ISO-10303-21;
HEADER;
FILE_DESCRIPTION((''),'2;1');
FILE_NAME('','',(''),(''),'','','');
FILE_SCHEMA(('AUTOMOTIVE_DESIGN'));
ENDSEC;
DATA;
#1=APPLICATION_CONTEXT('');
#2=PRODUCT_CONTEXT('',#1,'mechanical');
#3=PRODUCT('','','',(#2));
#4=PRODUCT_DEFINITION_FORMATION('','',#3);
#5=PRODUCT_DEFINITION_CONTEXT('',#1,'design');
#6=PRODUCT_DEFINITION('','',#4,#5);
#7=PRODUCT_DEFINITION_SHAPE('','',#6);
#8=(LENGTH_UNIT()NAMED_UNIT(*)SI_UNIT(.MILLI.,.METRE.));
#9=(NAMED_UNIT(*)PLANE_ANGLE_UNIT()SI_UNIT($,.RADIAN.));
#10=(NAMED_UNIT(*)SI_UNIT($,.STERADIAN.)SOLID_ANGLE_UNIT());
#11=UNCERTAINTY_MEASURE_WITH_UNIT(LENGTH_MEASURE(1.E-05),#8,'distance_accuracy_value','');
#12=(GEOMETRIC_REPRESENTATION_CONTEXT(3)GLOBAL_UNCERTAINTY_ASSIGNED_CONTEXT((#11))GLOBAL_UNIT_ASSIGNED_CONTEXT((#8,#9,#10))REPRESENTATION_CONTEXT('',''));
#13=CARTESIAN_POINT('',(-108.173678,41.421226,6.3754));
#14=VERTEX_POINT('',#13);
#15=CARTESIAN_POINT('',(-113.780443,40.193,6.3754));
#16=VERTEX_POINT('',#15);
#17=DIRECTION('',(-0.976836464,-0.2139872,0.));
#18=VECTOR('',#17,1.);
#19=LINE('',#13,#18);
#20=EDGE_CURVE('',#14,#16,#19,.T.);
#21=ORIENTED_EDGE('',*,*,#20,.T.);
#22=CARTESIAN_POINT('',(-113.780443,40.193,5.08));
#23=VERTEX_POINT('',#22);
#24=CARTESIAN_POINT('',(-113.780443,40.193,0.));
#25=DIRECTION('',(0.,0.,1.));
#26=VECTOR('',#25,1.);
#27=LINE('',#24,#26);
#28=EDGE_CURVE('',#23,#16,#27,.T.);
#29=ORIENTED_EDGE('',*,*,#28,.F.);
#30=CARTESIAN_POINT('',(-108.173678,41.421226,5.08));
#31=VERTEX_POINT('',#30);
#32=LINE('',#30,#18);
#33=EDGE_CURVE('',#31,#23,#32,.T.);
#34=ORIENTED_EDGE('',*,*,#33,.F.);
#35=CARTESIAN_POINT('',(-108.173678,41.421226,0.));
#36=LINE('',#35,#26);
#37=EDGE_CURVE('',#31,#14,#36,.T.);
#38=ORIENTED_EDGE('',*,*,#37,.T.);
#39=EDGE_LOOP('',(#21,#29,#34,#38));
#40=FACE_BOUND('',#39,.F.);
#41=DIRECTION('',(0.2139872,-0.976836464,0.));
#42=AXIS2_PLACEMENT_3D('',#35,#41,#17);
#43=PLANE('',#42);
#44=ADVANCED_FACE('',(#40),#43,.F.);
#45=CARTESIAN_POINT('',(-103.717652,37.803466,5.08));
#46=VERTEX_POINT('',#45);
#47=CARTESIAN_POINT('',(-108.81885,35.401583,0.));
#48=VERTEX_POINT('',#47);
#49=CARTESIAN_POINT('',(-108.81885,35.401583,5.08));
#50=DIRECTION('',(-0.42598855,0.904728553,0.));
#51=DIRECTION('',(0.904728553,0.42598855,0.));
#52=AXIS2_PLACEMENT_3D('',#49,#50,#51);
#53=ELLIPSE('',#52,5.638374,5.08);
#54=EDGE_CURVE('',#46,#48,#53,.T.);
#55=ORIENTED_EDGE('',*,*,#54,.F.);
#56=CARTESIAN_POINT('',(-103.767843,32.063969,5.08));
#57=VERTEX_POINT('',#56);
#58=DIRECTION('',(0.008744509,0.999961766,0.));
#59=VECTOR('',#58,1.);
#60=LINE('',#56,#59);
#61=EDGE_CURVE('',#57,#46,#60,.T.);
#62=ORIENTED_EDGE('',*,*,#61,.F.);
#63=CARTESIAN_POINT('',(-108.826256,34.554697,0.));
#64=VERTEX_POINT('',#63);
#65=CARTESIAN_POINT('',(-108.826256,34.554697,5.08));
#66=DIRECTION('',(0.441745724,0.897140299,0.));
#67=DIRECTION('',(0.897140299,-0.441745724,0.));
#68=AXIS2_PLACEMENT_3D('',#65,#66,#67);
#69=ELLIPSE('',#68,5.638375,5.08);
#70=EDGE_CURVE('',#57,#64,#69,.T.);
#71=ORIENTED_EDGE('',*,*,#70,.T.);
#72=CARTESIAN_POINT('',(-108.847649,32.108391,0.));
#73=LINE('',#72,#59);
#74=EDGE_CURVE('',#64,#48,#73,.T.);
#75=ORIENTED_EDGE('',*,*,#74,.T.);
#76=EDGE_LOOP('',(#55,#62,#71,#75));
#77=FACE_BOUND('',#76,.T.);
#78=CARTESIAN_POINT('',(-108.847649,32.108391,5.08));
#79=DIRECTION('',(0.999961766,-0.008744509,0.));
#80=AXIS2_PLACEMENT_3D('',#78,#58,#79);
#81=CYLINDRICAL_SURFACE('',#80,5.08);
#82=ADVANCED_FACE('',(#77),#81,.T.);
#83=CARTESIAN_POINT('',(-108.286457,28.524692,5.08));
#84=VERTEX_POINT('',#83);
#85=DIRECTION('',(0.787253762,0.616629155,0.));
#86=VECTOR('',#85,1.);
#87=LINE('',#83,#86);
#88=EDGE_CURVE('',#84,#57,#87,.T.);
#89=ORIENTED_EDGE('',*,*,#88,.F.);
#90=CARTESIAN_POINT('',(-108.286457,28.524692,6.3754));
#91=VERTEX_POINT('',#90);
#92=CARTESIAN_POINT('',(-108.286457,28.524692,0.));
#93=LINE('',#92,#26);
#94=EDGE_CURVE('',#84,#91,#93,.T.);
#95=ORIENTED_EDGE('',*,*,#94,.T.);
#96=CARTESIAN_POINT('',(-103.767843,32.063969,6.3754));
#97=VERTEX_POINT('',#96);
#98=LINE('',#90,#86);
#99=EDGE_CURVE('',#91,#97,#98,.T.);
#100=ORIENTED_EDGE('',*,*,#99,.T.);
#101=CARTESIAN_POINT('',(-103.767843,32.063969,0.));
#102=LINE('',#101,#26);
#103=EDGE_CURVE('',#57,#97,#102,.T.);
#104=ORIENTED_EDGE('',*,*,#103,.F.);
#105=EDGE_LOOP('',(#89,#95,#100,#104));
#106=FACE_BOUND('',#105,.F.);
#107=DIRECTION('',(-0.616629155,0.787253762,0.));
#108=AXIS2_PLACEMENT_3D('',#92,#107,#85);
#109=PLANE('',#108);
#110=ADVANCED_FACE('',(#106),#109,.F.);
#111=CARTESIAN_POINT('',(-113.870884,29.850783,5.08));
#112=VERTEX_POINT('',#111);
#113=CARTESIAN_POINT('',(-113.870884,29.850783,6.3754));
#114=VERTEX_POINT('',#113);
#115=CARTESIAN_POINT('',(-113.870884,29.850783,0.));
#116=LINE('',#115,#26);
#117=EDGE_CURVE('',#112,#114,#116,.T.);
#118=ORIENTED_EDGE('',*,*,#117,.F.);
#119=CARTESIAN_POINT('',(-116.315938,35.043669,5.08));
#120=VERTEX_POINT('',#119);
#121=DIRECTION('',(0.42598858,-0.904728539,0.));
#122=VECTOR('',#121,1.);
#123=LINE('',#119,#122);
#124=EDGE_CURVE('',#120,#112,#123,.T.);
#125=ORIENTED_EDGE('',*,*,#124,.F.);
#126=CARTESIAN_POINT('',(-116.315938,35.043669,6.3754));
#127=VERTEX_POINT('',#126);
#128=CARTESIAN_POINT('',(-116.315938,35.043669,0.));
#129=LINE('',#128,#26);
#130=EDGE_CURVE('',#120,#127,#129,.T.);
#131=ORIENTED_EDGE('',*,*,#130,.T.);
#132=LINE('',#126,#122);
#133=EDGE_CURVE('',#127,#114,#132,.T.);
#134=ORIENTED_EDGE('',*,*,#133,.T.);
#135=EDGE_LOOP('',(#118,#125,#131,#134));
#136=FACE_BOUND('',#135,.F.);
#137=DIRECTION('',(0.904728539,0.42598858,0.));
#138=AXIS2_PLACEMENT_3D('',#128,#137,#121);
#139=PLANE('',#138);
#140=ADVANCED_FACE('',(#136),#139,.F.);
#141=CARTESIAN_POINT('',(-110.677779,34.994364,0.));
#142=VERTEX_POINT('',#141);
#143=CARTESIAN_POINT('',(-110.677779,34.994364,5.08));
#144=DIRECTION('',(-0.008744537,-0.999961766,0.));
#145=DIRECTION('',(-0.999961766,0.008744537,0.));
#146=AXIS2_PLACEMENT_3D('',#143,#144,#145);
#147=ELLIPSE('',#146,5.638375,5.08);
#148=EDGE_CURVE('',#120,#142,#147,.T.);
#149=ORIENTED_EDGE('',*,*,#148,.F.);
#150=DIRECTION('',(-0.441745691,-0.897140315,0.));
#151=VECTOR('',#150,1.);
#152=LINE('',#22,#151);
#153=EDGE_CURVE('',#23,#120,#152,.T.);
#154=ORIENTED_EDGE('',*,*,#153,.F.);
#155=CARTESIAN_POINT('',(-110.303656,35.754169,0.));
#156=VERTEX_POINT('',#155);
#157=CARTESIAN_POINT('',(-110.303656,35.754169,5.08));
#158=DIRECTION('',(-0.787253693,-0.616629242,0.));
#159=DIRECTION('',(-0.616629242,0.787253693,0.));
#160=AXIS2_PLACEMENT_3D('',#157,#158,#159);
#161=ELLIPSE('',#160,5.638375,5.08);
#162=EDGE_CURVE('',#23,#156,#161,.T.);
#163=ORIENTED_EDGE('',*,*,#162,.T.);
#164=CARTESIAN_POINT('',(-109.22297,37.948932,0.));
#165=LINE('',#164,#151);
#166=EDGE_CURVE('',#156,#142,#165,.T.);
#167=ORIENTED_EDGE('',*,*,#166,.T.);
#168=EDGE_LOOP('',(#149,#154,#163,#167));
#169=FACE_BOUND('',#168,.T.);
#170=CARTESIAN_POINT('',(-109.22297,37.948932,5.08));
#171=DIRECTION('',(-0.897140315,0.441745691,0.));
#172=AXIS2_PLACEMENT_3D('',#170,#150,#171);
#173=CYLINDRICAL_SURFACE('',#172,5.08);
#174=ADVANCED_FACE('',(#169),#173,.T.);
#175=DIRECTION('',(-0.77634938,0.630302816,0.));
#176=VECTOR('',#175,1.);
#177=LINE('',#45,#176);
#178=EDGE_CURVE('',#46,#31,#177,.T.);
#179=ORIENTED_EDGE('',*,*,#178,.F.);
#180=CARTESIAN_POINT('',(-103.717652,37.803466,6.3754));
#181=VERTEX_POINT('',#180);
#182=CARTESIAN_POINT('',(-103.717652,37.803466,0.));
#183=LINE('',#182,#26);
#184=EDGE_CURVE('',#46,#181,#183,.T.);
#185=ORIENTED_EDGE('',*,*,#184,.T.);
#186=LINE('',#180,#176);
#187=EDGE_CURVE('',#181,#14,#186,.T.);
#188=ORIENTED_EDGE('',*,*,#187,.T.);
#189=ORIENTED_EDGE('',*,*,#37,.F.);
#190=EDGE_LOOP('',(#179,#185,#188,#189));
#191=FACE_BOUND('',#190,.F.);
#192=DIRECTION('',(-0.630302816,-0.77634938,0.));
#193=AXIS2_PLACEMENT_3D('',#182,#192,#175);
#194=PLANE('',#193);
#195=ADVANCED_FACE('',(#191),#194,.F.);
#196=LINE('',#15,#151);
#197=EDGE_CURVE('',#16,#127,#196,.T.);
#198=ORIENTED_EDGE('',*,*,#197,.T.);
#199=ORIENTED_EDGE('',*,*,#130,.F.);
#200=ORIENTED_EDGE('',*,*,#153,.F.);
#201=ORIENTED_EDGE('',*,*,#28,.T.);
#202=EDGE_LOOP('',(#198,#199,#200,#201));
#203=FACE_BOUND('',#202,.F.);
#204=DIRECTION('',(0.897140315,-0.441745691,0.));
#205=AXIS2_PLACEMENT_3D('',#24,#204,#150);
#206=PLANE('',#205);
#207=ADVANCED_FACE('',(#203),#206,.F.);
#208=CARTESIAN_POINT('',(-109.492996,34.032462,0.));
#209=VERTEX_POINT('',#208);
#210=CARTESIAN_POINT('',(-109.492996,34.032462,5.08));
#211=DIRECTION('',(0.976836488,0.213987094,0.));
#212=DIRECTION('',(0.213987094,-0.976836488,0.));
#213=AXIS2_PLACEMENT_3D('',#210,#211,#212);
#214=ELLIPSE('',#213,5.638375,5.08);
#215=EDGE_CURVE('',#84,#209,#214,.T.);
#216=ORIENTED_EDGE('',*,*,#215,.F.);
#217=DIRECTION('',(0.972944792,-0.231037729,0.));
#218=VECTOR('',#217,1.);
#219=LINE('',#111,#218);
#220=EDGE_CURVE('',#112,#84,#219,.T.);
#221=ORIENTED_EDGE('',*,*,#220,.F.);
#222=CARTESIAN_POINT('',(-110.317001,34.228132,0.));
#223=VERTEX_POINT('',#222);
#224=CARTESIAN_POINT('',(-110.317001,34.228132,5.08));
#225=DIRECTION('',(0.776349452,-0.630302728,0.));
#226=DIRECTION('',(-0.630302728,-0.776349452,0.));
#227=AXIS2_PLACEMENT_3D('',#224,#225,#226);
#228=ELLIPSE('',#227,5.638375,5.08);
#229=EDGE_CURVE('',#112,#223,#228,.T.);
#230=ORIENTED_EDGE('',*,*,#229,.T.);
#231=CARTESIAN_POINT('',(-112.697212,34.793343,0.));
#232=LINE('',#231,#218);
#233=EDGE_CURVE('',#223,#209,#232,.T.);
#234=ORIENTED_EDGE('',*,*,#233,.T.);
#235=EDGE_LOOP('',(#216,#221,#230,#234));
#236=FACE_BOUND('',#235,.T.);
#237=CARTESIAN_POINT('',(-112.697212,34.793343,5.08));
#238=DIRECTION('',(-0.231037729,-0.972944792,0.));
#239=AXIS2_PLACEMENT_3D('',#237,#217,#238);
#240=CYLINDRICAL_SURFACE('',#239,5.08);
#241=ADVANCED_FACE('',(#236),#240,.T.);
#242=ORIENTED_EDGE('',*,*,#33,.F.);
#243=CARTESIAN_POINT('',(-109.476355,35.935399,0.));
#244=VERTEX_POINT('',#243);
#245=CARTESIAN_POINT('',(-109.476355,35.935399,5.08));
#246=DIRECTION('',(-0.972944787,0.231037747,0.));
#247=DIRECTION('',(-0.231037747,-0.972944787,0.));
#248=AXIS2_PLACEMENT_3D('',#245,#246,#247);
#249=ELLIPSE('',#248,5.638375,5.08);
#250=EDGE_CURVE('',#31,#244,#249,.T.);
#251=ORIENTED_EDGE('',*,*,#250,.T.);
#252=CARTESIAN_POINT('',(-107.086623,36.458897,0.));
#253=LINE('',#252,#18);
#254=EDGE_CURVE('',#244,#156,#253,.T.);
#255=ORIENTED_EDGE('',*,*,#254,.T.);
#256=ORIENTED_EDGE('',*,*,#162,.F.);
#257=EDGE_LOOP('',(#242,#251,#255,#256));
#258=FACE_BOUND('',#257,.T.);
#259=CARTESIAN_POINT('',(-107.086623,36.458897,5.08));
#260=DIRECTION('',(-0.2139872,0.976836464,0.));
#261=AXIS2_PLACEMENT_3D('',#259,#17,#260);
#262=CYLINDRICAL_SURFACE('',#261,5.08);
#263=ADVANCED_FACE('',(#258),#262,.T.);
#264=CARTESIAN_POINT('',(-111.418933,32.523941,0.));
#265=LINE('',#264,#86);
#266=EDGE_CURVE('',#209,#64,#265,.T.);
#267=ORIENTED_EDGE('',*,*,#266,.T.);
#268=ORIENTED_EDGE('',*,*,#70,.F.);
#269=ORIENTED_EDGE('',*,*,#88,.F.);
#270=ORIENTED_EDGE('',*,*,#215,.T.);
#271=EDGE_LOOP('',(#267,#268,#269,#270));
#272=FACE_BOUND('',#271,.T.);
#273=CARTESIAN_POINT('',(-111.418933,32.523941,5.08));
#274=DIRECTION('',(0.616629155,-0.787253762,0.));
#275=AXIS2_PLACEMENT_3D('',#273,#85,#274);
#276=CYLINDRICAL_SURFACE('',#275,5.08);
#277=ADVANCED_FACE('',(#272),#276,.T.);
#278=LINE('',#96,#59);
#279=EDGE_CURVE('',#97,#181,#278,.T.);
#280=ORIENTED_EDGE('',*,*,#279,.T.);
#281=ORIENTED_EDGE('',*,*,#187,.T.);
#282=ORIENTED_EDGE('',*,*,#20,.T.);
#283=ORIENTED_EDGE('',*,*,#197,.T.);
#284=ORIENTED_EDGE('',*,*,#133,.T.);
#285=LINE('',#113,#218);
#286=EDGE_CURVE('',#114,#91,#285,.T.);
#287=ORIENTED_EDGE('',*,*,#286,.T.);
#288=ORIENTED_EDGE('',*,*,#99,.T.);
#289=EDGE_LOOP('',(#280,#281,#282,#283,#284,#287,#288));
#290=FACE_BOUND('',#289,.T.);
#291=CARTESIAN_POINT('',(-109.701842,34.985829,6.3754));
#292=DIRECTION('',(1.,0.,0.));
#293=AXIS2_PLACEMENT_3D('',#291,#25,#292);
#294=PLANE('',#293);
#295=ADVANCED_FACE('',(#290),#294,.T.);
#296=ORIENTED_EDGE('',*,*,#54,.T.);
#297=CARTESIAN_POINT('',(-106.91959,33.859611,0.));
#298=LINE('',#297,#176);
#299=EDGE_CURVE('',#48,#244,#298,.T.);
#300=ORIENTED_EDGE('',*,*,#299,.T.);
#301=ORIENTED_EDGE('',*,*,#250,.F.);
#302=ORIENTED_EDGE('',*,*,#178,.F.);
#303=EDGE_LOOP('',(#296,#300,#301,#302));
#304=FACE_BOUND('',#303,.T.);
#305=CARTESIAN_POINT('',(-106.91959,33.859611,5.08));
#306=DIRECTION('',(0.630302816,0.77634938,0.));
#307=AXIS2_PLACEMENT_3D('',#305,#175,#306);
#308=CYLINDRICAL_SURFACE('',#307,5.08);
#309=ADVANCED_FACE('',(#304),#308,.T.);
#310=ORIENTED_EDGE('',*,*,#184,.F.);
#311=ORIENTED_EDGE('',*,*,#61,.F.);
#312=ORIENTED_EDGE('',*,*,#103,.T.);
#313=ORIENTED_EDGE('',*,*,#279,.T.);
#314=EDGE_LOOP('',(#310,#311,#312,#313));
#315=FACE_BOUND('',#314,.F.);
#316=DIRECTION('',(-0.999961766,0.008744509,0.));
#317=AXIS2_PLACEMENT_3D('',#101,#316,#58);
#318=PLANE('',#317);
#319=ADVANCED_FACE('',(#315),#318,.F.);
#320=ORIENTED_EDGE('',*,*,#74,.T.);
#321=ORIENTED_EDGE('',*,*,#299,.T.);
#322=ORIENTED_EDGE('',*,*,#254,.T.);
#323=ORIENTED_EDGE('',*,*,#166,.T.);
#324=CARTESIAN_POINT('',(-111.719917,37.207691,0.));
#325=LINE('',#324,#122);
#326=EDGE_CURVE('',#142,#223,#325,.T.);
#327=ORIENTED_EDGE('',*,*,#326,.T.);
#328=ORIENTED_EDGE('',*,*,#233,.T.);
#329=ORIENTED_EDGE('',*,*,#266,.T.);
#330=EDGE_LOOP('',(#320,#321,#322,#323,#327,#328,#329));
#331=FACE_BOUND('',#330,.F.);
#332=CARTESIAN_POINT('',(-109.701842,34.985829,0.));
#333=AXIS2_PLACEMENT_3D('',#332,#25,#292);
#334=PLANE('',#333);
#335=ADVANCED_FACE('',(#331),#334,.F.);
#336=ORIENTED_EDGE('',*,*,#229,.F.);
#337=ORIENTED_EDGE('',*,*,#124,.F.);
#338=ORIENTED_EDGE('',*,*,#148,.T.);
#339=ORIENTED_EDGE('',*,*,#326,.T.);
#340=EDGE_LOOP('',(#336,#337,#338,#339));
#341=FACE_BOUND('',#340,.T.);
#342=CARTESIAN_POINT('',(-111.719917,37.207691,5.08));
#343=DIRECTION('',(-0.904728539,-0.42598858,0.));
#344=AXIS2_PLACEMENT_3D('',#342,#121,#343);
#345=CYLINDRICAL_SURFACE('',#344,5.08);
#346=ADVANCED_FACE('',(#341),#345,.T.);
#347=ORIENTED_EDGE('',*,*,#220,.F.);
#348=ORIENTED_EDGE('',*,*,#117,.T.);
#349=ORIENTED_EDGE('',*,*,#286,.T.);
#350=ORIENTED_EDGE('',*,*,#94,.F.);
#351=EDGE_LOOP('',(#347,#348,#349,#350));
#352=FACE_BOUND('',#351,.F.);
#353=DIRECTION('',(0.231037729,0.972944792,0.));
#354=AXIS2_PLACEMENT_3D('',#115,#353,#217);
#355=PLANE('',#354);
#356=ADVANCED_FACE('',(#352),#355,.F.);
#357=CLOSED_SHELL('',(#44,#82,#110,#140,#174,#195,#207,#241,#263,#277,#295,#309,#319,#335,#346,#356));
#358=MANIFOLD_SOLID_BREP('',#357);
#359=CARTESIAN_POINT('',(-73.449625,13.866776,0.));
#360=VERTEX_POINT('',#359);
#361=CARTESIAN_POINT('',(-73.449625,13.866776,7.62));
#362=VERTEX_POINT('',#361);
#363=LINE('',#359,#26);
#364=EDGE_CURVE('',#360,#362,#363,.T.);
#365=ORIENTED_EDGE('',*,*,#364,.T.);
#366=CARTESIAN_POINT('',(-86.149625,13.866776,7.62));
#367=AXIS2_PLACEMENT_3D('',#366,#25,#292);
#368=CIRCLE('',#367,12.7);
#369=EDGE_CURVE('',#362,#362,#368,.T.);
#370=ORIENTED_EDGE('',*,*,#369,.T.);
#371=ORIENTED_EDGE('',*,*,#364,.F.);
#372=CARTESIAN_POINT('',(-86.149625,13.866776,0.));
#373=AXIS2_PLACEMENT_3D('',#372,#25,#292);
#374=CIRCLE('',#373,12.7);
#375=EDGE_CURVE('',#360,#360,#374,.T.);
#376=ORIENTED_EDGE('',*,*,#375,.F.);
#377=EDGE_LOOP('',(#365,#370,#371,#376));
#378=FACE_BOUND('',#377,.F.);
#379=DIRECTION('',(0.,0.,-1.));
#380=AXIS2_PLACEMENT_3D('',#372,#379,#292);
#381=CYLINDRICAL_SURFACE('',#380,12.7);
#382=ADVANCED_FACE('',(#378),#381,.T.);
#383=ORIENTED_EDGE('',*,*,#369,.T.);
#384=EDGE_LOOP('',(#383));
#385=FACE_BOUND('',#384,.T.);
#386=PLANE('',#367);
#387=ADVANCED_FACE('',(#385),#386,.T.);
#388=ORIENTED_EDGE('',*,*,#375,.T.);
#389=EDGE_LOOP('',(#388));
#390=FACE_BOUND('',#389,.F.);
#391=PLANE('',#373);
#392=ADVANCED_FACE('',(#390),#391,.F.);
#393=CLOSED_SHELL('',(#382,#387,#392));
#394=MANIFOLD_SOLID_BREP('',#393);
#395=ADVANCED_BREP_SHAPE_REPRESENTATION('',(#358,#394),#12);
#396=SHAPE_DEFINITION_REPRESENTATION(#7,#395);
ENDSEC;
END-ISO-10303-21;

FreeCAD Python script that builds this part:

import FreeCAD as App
import Part
import Sketcher
from FreeCAD import Vector
Q = App.Units.Quantity


def edges_at(feature, points):
    """Names of the edges that pass closest to the given points."""
    edges = feature.Shape.Edges
    near = lambda p: min(range(len(edges)), key=lambda i: edges[i].distToShape(Part.Vertex(*p))[0])
    return sorted({f"Edge{near(p) + 1}" for p in points})

doc = App.newDocument("Part")
params = doc.addObject("Spreadsheet::Sheet", "Params")
for row, (alias, value) in enumerate([
    ("sketch1_diameter", "1 in"),
    ("pad1_length", "0.3 in"),
    ("pad2_length", "0.251 in"),
    ("fillet_radius", "0.2 in"),
], start=1):
    params.set(f"A{row}", alias)
    params.set(f"B{row}", "=" + value)
    params.setAlias(f"B{row}", alias)

body = doc.addObject("PartDesign::Body", "Body")

# Sketch on XY plane
sketch1 = doc.addObject("Sketcher::SketchObject", "Sketch")
body.addObject(sketch1)
sketch1.AttachmentSupport = (doc.XY_Plane, [""])
sketch1.MapMode = "FlatFace"
sketch1.addGeometry(Part.Circle(Vector(-86, 14, 0), Vector(0, 0, 1), 13), False)
sketch1.addConstraint(Sketcher.Constraint("Diameter", 0, Q("1 in")))
sketch1.addConstraint(Sketcher.Constraint("DistanceX", 0, 3, -1, 1, 86.149625))
sketch1.addConstraint(Sketcher.Constraint("DistanceY", -1, 1, 0, 3, 13.866776))
sketch1.setExpression("Constraints[0]", "Params.sketch1_diameter")
pad1 = doc.addObject("PartDesign::Pad", "Pad")
body.addObject(pad1)
pad1.Profile = sketch1
pad1.setExpression("Length", "Params.pad1_length")
body2 = doc.addObject("PartDesign::Body", "Body001")

# Sketch on XY plane
sketch2 = doc.addObject("Sketcher::SketchObject", "Sketch001")
body2.addObject(sketch2)
sketch2.AttachmentSupport = (doc.getObject("XY_Plane001"), [""])
sketch2.MapMode = "FlatFace"
sketch2.addGeometry(Part.LineSegment(Vector(-108, 41, 0), Vector(-114, 40, 0)), False)
sketch2.addGeometry(Part.LineSegment(Vector(-114, 40, 0), Vector(-116, 35, 0)), False)
sketch2.addGeometry(Part.LineSegment(Vector(-116, 35, 0), Vector(-114, 30, 0)), False)
sketch2.addGeometry(Part.LineSegment(Vector(-114, 30, 0), Vector(-108, 29, 0)), False)
sketch2.addGeometry(Part.LineSegment(Vector(-108, 29, 0), Vector(-104, 32, 0)), False)
sketch2.addGeometry(Part.LineSegment(Vector(-104, 32, 0), Vector(-104, 38, 0)), False)
sketch2.addGeometry(Part.LineSegment(Vector(-104, 38, 0), Vector(-108, 41, 0)), False)
sketch2.addConstraint(Sketcher.Constraint("Coincident", 0, 2, 1, 1))
sketch2.addConstraint(Sketcher.Constraint("Coincident", 1, 2, 2, 1))
sketch2.addConstraint(Sketcher.Constraint("Coincident", 2, 2, 3, 1))
sketch2.addConstraint(Sketcher.Constraint("Coincident", 3, 2, 4, 1))
sketch2.addConstraint(Sketcher.Constraint("Coincident", 4, 2, 5, 1))
sketch2.addConstraint(Sketcher.Constraint("Coincident", 5, 2, 6, 1))
sketch2.addConstraint(Sketcher.Constraint("Coincident", 6, 2, 0, 1))
sketch2.addConstraint(Sketcher.Constraint("Equal", 0, 1))
sketch2.addConstraint(Sketcher.Constraint("Equal", 1, 2))
sketch2.addConstraint(Sketcher.Constraint("Equal", 2, 3))
sketch2.addConstraint(Sketcher.Constraint("Equal", 3, 4))
sketch2.addConstraint(Sketcher.Constraint("Equal", 4, 5))
sketch2.addConstraint(Sketcher.Constraint("Equal", 5, 6))
sketch2.addConstraint(Sketcher.Constraint("DistanceY", -1, 1, 0, 2, 40.193))
sketch2.addConstraint(Sketcher.Constraint("DistanceY", 4, 2, 1, 2, 2.9797))
sketch2.addConstraint(Sketcher.Constraint("DistanceX", 0, 2, 4, 2, 10.0126))
sketch2.addConstraint(Sketcher.Constraint("DistanceX", 1, 2, -1, 1, 116.315938))
sketch2.addConstraint(Sketcher.Constraint("DistanceY", -1, 1, 1, 2, 35.043669))
sketch2.addConstraint(Sketcher.Constraint("DistanceX", 5, 2, -1, 1, 103.717652))
sketch2.addConstraint(Sketcher.Constraint("DistanceX", 2, 2, 0, 2, 0.090441))
sketch2.addConstraint(Sketcher.Constraint("DistanceY", 3, 2, 2, 2, 1.326091))
pad2 = doc.addObject("PartDesign::Pad", "Pad001")
body2.addObject(pad2)
pad2.Profile = sketch2
pad2.setExpression("Length", "Params.pad2_length")
doc.recompute()

fillet = doc.addObject("PartDesign::Fillet", "Fillet")
body2.addObject(fillet)
fillet.Base = (pad2, edges_at(pad2, [
    (-110.977, 40.807, 0),
    (-115.048, 37.618, 0),
    (-115.093, 32.447, 0),
    (-111.079, 29.188, 0),
    (-106.027, 30.294, 0),
    (-103.743, 34.934, 0),
    (-105.946, 39.612, 0),
]))
fillet.setExpression("Radius", "Params.fillet_radius")

doc.recompute()
